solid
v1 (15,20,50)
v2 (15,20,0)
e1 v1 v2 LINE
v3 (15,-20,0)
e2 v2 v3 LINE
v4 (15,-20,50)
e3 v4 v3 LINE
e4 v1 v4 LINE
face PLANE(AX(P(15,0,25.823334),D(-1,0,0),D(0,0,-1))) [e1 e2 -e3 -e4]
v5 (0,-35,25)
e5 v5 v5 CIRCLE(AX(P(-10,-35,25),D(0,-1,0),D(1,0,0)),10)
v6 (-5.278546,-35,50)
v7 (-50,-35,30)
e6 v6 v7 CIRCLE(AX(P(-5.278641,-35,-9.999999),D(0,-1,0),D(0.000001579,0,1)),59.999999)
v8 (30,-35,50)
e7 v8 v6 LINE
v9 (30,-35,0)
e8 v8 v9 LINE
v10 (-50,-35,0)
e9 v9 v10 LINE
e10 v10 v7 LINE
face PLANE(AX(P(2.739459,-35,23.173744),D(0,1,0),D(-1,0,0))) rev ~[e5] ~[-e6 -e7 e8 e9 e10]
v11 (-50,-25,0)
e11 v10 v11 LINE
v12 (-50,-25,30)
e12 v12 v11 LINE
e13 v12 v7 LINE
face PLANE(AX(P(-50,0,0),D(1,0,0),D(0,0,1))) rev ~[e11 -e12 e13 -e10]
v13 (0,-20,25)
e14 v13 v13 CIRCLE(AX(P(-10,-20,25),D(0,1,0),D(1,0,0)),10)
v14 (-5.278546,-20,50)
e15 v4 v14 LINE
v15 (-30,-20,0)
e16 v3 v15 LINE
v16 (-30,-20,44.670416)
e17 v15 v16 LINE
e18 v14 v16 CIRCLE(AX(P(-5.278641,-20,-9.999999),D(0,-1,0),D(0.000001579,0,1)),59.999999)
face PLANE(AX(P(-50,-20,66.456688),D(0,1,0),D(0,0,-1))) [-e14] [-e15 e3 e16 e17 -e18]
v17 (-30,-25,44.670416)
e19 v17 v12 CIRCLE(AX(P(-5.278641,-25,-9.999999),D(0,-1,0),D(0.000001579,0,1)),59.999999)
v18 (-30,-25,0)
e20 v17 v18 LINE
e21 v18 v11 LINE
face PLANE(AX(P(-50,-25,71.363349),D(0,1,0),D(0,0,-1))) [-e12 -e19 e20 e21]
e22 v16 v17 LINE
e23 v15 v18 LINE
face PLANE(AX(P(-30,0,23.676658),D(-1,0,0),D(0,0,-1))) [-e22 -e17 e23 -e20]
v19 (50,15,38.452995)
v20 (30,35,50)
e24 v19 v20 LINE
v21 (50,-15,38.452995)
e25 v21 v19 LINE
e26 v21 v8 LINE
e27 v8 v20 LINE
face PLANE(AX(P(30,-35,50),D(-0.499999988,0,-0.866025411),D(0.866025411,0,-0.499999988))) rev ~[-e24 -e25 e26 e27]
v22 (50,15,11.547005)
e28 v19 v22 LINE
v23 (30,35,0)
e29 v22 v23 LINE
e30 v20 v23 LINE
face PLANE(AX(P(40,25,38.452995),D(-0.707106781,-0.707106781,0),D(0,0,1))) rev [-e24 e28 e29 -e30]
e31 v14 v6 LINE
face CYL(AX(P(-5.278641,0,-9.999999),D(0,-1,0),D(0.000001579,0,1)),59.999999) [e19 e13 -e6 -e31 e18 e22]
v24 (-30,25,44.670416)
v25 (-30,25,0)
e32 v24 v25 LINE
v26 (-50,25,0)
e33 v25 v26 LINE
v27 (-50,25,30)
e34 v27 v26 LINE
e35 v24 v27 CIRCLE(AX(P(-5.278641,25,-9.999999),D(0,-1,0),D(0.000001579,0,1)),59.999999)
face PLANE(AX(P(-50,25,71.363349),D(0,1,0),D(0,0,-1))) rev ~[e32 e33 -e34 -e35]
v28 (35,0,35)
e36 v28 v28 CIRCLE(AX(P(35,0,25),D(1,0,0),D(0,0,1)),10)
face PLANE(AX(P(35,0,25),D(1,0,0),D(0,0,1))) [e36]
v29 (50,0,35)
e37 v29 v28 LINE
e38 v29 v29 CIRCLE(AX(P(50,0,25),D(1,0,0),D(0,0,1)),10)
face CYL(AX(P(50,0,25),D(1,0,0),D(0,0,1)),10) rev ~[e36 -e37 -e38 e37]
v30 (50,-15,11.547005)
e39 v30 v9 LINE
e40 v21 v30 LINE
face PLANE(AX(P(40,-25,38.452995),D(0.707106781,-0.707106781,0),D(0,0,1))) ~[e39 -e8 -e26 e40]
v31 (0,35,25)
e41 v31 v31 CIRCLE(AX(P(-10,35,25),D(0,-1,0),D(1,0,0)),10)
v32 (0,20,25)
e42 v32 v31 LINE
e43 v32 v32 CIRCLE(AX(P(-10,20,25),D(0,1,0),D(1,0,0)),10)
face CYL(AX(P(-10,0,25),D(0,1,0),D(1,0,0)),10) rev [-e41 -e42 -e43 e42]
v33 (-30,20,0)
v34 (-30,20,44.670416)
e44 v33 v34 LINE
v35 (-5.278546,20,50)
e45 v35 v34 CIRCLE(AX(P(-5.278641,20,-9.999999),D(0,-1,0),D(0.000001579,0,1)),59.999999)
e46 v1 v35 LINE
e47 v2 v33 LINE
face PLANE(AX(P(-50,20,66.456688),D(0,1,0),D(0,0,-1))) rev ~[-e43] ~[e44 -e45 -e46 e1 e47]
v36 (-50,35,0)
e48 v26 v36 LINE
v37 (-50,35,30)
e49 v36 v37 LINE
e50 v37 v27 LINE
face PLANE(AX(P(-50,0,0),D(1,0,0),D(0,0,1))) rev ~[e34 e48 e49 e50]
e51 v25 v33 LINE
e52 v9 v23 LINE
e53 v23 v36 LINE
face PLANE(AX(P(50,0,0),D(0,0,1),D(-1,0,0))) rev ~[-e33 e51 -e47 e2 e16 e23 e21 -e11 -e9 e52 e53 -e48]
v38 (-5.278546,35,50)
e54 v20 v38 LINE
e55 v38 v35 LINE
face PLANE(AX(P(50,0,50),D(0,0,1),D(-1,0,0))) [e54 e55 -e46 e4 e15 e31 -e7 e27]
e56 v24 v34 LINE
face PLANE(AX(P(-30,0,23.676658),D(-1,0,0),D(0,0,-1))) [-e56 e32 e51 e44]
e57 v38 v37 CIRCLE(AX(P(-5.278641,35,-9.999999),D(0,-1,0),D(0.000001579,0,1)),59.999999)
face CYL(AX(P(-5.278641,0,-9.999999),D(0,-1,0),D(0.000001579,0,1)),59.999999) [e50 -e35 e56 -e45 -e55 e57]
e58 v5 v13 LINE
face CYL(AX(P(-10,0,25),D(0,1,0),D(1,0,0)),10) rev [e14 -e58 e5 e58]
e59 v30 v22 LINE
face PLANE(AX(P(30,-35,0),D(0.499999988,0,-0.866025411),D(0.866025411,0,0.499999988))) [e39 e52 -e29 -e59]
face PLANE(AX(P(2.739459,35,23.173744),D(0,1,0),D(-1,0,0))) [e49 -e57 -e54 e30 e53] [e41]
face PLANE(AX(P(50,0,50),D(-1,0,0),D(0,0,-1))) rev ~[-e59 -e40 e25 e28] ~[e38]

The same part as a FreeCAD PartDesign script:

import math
import FreeCAD as App
import Part
import Sketcher

V = App.Vector
Q = App.Units.Quantity


def edges_at(feature, points):
    """Names of the edges that pass closest to the given points."""
    edges = feature.Shape.Edges
    near = lambda p: min(range(len(edges)), key=lambda i: edges[i].distToShape(Part.Vertex(*p))[0])
    return sorted({f"Edge{near(p) + 1}" for p in points})

doc = App.newDocument("Part")
params = doc.addObject("Spreadsheet::Sheet", "Params")
for row, (alias, value) in enumerate([
    ("sketch1_diameter", "20 mm"),
    ("sketch1_radius", "59.999999 mm"),
    ("sketch1_width", "100 mm"),
    ("sketch1_height", "50 mm"),
    ("sketch1_height2", "30 mm"),
    ("pad1_length", "70 mm"),
    ("sketch2_width", "20 mm"),
    ("chamfer_size", "20 mm"),
    ("chamfer2_size", "20 mm"),
    ("sketch3_diameter", "20 mm"),
    ("pocket2_length", "15 mm"),
    ("sketch4_width", "40 mm"),
    ("pocket3_length", "65 mm"),
    ("sketch5_width", "50 mm"),
    ("pocket4_length", "20 mm"),
], start=1):
    params.set(f"A{row}", alias)
    params.set(f"B{row}", "=" + value)
    params.setAlias(f"B{row}", alias)

body = doc.addObject("PartDesign::Body", "Body")

# Sketch on XZ plane
sketch1 = body.newObject("Sketcher::SketchObject", "Sketch")
sketch1.AttachmentSupport = (doc.getObject("XZ_Plane"), [""])
sketch1.MapMode = "FlatFace"
sketch1.addGeometry(Part.LineSegment(V(50, 0, 0), V(50, 50, 0)), False)
sketch1.addGeometry(Part.LineSegment(V(50, 50, 0), V(-5.278546, 50, 0)), False)
sketch1.addGeometry(Part.ArcOfCircle(Part.Circle(V(-5.278641, -9.999999, 0), V(0, 0, 1), 59.999999), math.radians(89.99991), math.radians(138.189685)), False)
sketch1.addGeometry(Part.LineSegment(V(-50, 30, 0), V(-50, 0, 0)), False)
sketch1.addGeometry(Part.LineSegment(V(-50, 0, 0), V(50, 0, 0)), False)
sketch1.addGeometry(Part.Circle(V(-10, 25, 0), V(0, 0, 1), 10), False)
sketch1.addConstraint(Sketcher.Constraint("Coincident", 0, 2, 1, 1))
sketch1.addConstraint(Sketcher.Constraint("Coincident", 1, 2, 2, 1))
sketch1.addConstraint(Sketcher.Constraint("Coincident", 2, 2, 3, 1))
sketch1.addConstraint(Sketcher.Constraint("Coincident", 3, 2, 4, 1))
sketch1.addConstraint(Sketcher.Constraint("Coincident", 4, 2, 0, 1))
sketch1.addConstraint(Sketcher.Constraint("Vertical", 0))
sketch1.addConstraint(Sketcher.Constraint("Horizontal", 1))
sketch1.addConstraint(Sketcher.Constraint("Vertical", 3))
sketch1.addConstraint(Sketcher.Constraint("Horizontal", 4))
sketch1.addConstraint(Sketcher.Constraint("PointOnObject", 3, 2, -1))
sketch1.addConstraint(Sketcher.Constraint("Diameter", 5, 20.0))
sketch1.addConstraint(Sketcher.Constraint("Radius", 2, 59.999999))
sketch1.addConstraint(Sketcher.Constraint("DistanceX", 4, 1, 4, 2, 100.0))
sketch1.addConstraint(Sketcher.Constraint("DistanceY", 0, 1, 0, 2, 50.0))
sketch1.addConstraint(Sketcher.Constraint("DistanceY", 3, 2, 3, 1, 30.0))
sketch1.addConstraint(Sketcher.Constraint("DistanceX", 5, 3, -1, 1, 10.0))
sketch1.addConstraint(Sketcher.Constraint("DistanceY", -1, 1, 5, 3, 25.0))
sketch1.addConstraint(Sketcher.Constraint("DistanceX", -1, 1, 0, 2, 50.0))
sketch1.addConstraint(Sketcher.Constraint("DistanceX", 1, 2, 1, 1, 55.278546))
sketch1.setExpression("Constraints[10]", "Params.sketch1_diameter")
sketch1.setExpression("Constraints[11]", "Params.sketch1_radius")
sketch1.setExpression("Constraints[12]", "Params.sketch1_width")
sketch1.setExpression("Constraints[13]", "Params.sketch1_height")
sketch1.setExpression("Constraints[14]", "Params.sketch1_height2")
pad1 = body.newObject("PartDesign::Pad", "Pad")
pad1.Profile = sketch1
pad1.setExpression("Length", "Params.pad1_length")
pad1.Midplane = True

# Sketch on XZ plane
sketch2 = body.newObject("Sketcher::SketchObject", "Sketch001")
sketch2.AttachmentSupport = (doc.getObject("XZ_Plane"), [""])
sketch2.MapMode = "FlatFace"
sketch2.AttachmentOffset = App.Placement(V(0, 0, 35), App.Rotation())
sketch2.addGeometry(Part.LineSegment(V(50, 50, 0), V(30, 50, 0)), False)
sketch2.addGeometry(Part.LineSegment(V(30, 50, 0), V(50, 38.452995, 0)), False)
sketch2.addGeometry(Part.LineSegment(V(50, 38.452995, 0), V(50, 50, 0)), False)
sketch2.addGeometry(Part.LineSegment(V(30, 0, 0), V(50, 0, 0)), False)
sketch2.addGeometry(Part.LineSegment(V(50, 0, 0), V(50, 11.547005, 0)), False)
sketch2.addGeometry(Part.LineSegment(V(50, 11.547005, 0), V(30, 0, 0)), False)
sketch2.addConstraint(Sketcher.Constraint("Coincident", 0, 2, 1, 1))
sketch2.addConstraint(Sketcher.Constraint("Coincident", 1, 2, 2, 1))
sketch2.addConstraint(Sketcher.Constraint("Coincident", 2, 2, 0, 1))
sketch2.addConstraint(Sketcher.Constraint("Coincident", 3, 2, 4, 1))
sketch2.addConstraint(Sketcher.Constraint("Coincident", 4, 2, 5, 1))
sketch2.addConstraint(Sketcher.Constraint("Coincident", 5, 2, 3, 1))
sketch2.addConstraint(Sketcher.Constraint("Horizontal", 0))
sketch2.addConstraint(Sketcher.Constraint("Vertical", 2))
sketch2.addConstraint(Sketcher.Constraint("Horizontal", 3))
sketch2.addConstraint(Sketcher.Constraint("Vertical", 4))
sketch2.addConstraint(Sketcher.Constraint("PointOnObject", 3, 2, -1))
sketch2.addConstraint(Sketcher.Constraint("Vertical", 2, 2, 3, 2))
sketch2.addConstraint(Sketcher.Constraint("Vertical", 0, 2, 5, 2))
sketch2.addConstraint(Sketcher.Constraint("Equal", 2, 4))
sketch2.addConstraint(Sketcher.Constraint("DistanceX", 0, 2, 0, 1, 20.0))
sketch2.addConstraint(Sketcher.Constraint("Angle", 1, Q("-29.999999 deg")))
sketch2.addConstraint(Sketcher.Constraint("DistanceX", -1, 1, 0, 2, 30.0))
sketch2.addConstraint(Sketcher.Constraint("DistanceY", -1, 1, 0, 2, 50.0))
sketch2.setExpression("Constraints[14]", "Params.sketch2_width")
pocket1 = body.newObject("PartDesign::Pocket", "Pocket")
pocket1.Profile = sketch2
pocket1.Type = "ThroughAll"
doc.recompute()

chamfer = body.newObject("PartDesign::Chamfer", "Chamfer")
chamfer.Base = (pocket1, edges_at(pocket1, [(50, -35, 25)]))
chamfer.setExpression("Size", "Params.chamfer_size")
doc.recompute()

chamfer2 = body.newObject("PartDesign::Chamfer", "Chamfer001")
chamfer2.Base = (chamfer, edges_at(chamfer, [(50, 35, 25)]))
chamfer2.setExpression("Size", "Params.chamfer2_size")

# Sketch on YZ plane
sketch3 = body.newObject("Sketcher::SketchObject", "Sketch002")
sketch3.AttachmentSupport = (doc.getObject("YZ_Plane"), [""])
sketch3.MapMode = "FlatFace"
sketch3.AttachmentOffset = App.Placement(V(0, 0, 50), App.Rotation())
sketch3.addGeometry(Part.Circle(V(0, 25, 0), V(0, 0, 1), 10), False)
sketch3.addConstraint(Sketcher.Constraint("PointOnObject", 0, 3, -2))
sketch3.addConstraint(Sketcher.Constraint("Diameter", 0, 20.0))
sketch3.addConstraint(Sketcher.Constraint("DistanceY", -1, 1, 0, 3, 25.0))
sketch3.setExpression("Constraints[1]", "Params.sketch3_diameter")
pocket2 = body.newObject("PartDesign::Pocket", "Pocket001")
pocket2.Profile = sketch3
pocket2.setExpression("Length", "Params.pocket2_length")

# Sketch on YZ plane
sketch4 = body.newObject("Sketcher::SketchObject", "Sketch003")
sketch4.AttachmentSupport = (doc.getObject("YZ_Plane"), [""])
sketch4.MapMode = "FlatFace"
sketch4.AttachmentOffset = App.Placement(V(0, 0, -50), App.Rotation())
sketch4.addGeometry(Part.LineSegment(V(-20, 66.456688, 0), V(20, 66.456688, 0)), False)
sketch4.addGeometry(Part.LineSegment(V(20, 66.456688, 0), V(20, -14.810021, 0)), False)
sketch4.addGeometry(Part.LineSegment(V(20, -14.810021, 0), V(-20, -14.810021, 0)), False)
sketch4.addGeometry(Part.LineSegment(V(-20, -14.810021, 0), V(-20, 66.456688, 0)), False)
sketch4.addConstraint(Sketcher.Constraint("Coincident", 0, 2, 1, 1))
sketch4.addConstraint(Sketcher.Constraint("Coincident", 1, 2, 2, 1))
sketch4.addConstraint(Sketcher.Constraint("Coincident", 2, 2, 3, 1))
sketch4.addConstraint(Sketcher.Constraint("Coincident", 3, 2, 0, 1))
sketch4.addConstraint(Sketcher.Constraint("Horizontal", 0))
sketch4.addConstraint(Sketcher.Constraint("Vertical", 1))
sketch4.addConstraint(Sketcher.Constraint("Horizontal", 2))
sketch4.addConstraint(Sketcher.Constraint("Vertical", 3))
sketch4.addConstraint(Sketcher.Constraint("DistanceX", 0, 1, 0, 2, 40.0))
sketch4.addConstraint(Sketcher.Constraint("DistanceX", -1, 1, 0, 2, 20.0))
sketch4.addConstraint(Sketcher.Constraint("DistanceY", 1, 2, 1, 1, 81.266709))
sketch4.addConstraint(Sketcher.Constraint("DistanceY", -1, 1, 0, 2, 66.456688))
sketch4.setExpression("Constraints[8]", "Params.sketch4_width")
pocket3 = body.newObject("PartDesign::Pocket", "Pocket002")
pocket3.Profile = sketch4
pocket3.setExpression("Length", "Params.pocket3_length")
pocket3.Reversed = True

# Sketch on YZ plane
sketch5 = body.newObject("Sketcher::SketchObject", "Sketch004")
sketch5.AttachmentSupport = (doc.getObject("YZ_Plane"), [""])
sketch5.MapMode = "FlatFace"
sketch5.AttachmentOffset = App.Placement(V(0, 0, -50), App.Rotation())
sketch5.addGeometry(Part.LineSegment(V(-25, 71.363349, 0), V(25, 71.363349, 0)), False)
sketch5.addGeometry(Part.LineSegment(V(25, 71.363349, 0), V(25, -24.010033, 0)), False)
sketch5.addGeometry(Part.LineSegment(V(25, -24.010033, 0), V(-25, -24.010033, 0)), False)
sketch5.addGeometry(Part.LineSegment(V(-25, -24.010033, 0), V(-25, 71.363349, 0)), False)
sketch5.addConstraint(Sketcher.Constraint("Coincident", 0, 2, 1, 1))
sketch5.addConstraint(Sketcher.Constraint("Coincident", 1, 2, 2, 1))
sketch5.addConstraint(Sketcher.Constraint("Coincident", 2, 2, 3, 1))
sketch5.addConstraint(Sketcher.Constraint("Coincident", 3, 2, 0, 1))
sketch5.addConstraint(Sketcher.Constraint("Horizontal", 0))
sketch5.addConstraint(Sketcher.Constraint("Vertical", 1))
sketch5.addConstraint(Sketcher.Constraint("Horizontal", 2))
sketch5.addConstraint(Sketcher.Constraint("Vertical", 3))
sketch5.addConstraint(Sketcher.Constraint("DistanceX", 0, 1, 0, 2, 50.0))
sketch5.addConstraint(Sketcher.Constraint("DistanceX", -1, 1, 0, 2, 25.0))
sketch5.addConstraint(Sketcher.Constraint("DistanceY", 1, 2, 1, 1, 95.373383))
sketch5.addConstraint(Sketcher.Constraint("DistanceY", -1, 1, 0, 2, 71.363349))
sketch5.setExpression("Constraints[8]", "Params.sketch5_width")
pocket4 = body.newObject("PartDesign::Pocket", "Pocket003")
pocket4.Profile = sketch5
pocket4.setExpression("Length", "Params.pocket4_length")
pocket4.Reversed = True

doc.recompute()
